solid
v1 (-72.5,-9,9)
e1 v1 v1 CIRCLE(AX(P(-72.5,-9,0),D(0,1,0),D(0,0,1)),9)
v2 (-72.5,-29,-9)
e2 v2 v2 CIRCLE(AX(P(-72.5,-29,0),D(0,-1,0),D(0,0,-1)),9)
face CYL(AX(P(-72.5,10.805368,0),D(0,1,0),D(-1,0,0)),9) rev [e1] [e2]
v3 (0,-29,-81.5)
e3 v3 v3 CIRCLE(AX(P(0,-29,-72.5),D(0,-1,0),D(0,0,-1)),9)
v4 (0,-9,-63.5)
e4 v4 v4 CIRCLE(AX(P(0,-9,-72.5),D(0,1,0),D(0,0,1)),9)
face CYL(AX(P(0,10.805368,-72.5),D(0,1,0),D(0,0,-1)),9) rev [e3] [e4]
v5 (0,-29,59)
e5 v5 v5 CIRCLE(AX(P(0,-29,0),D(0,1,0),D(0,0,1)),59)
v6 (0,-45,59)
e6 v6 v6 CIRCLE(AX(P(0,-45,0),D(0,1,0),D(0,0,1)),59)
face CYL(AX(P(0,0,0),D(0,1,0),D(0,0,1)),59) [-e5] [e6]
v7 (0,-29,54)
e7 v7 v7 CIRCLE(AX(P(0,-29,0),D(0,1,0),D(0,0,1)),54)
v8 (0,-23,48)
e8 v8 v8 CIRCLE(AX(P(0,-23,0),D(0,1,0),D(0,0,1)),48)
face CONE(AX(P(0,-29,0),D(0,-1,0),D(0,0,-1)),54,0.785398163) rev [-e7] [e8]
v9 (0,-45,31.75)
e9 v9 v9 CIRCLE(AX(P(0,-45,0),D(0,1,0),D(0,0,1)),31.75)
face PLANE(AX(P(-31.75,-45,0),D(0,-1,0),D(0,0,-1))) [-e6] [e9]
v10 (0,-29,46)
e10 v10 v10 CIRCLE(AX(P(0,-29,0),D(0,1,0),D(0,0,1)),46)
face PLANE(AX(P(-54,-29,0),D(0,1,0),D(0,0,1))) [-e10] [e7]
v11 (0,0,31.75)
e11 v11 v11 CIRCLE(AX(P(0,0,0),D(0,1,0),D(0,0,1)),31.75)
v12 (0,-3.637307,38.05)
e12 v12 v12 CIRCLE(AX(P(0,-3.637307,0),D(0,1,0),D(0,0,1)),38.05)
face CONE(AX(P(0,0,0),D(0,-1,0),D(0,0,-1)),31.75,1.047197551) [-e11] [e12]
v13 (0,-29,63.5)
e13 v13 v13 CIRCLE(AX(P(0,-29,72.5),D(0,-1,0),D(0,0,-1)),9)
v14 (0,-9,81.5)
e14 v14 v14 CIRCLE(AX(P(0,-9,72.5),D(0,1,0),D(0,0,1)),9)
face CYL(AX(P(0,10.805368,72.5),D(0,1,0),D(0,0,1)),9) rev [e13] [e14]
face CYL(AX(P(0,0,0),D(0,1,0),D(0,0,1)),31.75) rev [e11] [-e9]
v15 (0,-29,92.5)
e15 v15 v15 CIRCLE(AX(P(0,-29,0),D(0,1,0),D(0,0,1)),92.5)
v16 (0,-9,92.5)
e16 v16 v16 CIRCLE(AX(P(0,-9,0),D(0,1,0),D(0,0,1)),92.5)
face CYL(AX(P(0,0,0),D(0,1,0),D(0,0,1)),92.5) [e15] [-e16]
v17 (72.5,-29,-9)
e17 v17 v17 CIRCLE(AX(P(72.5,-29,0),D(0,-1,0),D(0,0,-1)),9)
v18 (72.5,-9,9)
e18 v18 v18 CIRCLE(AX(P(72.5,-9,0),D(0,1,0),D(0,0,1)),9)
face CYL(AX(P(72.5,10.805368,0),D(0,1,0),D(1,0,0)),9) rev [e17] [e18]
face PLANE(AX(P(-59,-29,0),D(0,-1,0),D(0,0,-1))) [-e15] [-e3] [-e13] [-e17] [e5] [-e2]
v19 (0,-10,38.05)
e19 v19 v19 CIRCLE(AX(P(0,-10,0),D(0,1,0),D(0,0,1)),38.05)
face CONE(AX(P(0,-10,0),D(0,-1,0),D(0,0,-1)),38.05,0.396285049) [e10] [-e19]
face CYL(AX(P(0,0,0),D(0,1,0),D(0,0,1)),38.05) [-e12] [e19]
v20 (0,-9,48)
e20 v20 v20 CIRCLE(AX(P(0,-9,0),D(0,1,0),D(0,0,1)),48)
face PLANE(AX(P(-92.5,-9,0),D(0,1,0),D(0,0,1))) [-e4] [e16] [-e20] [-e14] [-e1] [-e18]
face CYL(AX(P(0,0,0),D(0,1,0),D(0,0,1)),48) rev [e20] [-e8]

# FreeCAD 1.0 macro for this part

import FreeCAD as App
import Part
import Sketcher
from FreeCAD import Vector
Q = App.Units.Quantity


def add_polygon(sketch, points):
    """Adds a closed chain of lines whose ends are joined by coincident constraints."""
    first, n = sketch.GeometryCount, len(points)
    for a, b in zip(points, points[1:] + points[:1]):
        sketch.addGeometry(Part.LineSegment(App.Vector(*a, 0), App.Vector(*b, 0)), False)
    for i in range(n):
        sketch.addConstraint(Sketcher.Constraint("Coincident", first + i, 2, first + (i + 1) % n, 1))

doc = App.newDocument("Part")
params = doc.addObject("Spreadsheet::Sheet", "Params")
for row, (alias, value) in enumerate([
    ("sketch1_width", "8 mm"),
    ("sketch1_height", "45 mm"),
    ("sketch1_height2", "14 mm"),
    ("sketch1_height3", "20 mm"),
    ("sketch1_height4", "16 mm"),
    ("revolution_angle", "360 deg"),
    ("sketch2_width", "9 mm"),
    ("sketch2_height", "22 mm"),
    ("groove_angle", "360 deg"),
], start=1):
    params.set(f"A{row}", alias)
    params.set(f"B{row}", "=" + value)
    params.setAlias(f"B{row}", alias)

body = doc.addObject("PartDesign::Body", "Body")

# Sketch on XY plane
sketch1 = body.newObject("Sketcher::SketchObject", "Sketch")
sketch1.AttachmentSupport = (doc.getObject("XY_Plane"), [""])
sketch1.MapMode = "FlatFace"
add_polygon(sketch1, [(-31.75, -45), (-31.75, 0), (-38.05, -3.637307), (-38.05, -10), (-46, -29), (-54, -29), (-48, -23), (-48, -9), (-92.5, -9), (-92.5, -29), (-59, -29), (-59, -45)])  # lines 0-11
sketch1.addConstraint(Sketcher.Constraint("Vertical", 0))
sketch1.addConstraint(Sketcher.Constraint("Vertical", 2))
sketch1.addConstraint(Sketcher.Constraint("Horizontal", 4))
sketch1.addConstraint(Sketcher.Constraint("Vertical", 6))
sketch1.addConstraint(Sketcher.Constraint("Horizontal", 7))
sketch1.addConstraint(Sketcher.Constraint("Vertical", 8))
sketch1.addConstraint(Sketcher.Constraint("Horizontal", 9))
sketch1.addConstraint(Sketcher.Constraint("Vertical", 10))
sketch1.addConstraint(Sketcher.Constraint("Horizontal", 11))
sketch1.addConstraint(Sketcher.Constraint("PointOnObject", 0, 2, -1))
sketch1.addConstraint(Sketcher.Constraint("Horizontal", 4, 2, 8, 2))
sketch1.addConstraint(Sketcher.Constraint("DistanceX", 4, 2, 4, 1, Q("8 mm")))
sketch1.addConstraint(Sketcher.Constraint("DistanceY", 0, 1, 0, 2, Q("45 mm")))
sketch1.addConstraint(Sketcher.Constraint("DistanceY", 6, 1, 6, 2, Q("14 mm")))
sketch1.addConstraint(Sketcher.Constraint("DistanceY", 8, 2, 8, 1, Q("20 mm")))
sketch1.addConstraint(Sketcher.Constraint("DistanceY", 10, 2, 10, 1, Q("16 mm")))
sketch1.addConstraint(Sketcher.Constraint("Angle", 1, Q("-150 deg")))
sketch1.addConstraint(Sketcher.Constraint("Angle", 5, Q("45 deg")))
sketch1.addConstraint(Sketcher.Constraint("DistanceX", 7, 2, 7, 1, Q("44.5 mm")))
sketch1.addConstraint(Sketcher.Constraint("DistanceX", 9, 1, 9, 2, Q("33.5 mm")))
sketch1.addConstraint(Sketcher.Constraint("DistanceY", 2, 2, -1, 1, Q("10 mm")))
sketch1.addConstraint(Sketcher.Constraint("DistanceX", 3, 2, -1, 1, Q("46 mm")))
sketch1.addConstraint(Sketcher.Constraint("DistanceX", 11, 1, 11, 2, Q("27.25 mm")))
sketch1.addConstraint(Sketcher.Constraint("DistanceX", 1, 2, 0, 2, Q("6.3 mm")))
sketch1.setExpression("Constraints[23]", "Params.sketch1_width")
sketch1.setExpression("Constraints[24]", "Params.sketch1_height")
sketch1.setExpression("Constraints[25]", "Params.sketch1_height2")
sketch1.setExpression("Constraints[26]", "Params.sketch1_height3")
sketch1.setExpression("Constraints[27]", "Params.sketch1_height4")
revolution = body.newObject("PartDesign::Revolution", "Revolution")
revolution.Profile = sketch1
revolution.ReferenceAxis = (sketch1, ["V_Axis"])
revolution.setExpression("Angle", "Params.revolution_angle")

# Sketch on XY plane
sketch2 = body.newObject("Sketcher::SketchObject", "Sketch001")
sketch2.AttachmentSupport = (doc.getObject("XY_Plane"), [""])
sketch2.MapMode = "FlatFace"
add_polygon(sketch2, [(-81.5, -8), (-81.5, -30), (-72.5, -30), (-72.5, -8)])  # lines 0-3
sketch2.addGeometry(Part.LineSegment(Vector(-72.5, -8, 0), Vector(-72.5, -30, 0)), True)  # axis
sketch2.addConstraint(Sketcher.Constraint("Vertical", 0))
sketch2.addConstraint(Sketcher.Constraint("Horizontal", 1))
sketch2.addConstraint(Sketcher.Constraint("Vertical", 2))
sketch2.addConstraint(Sketcher.Constraint("Horizontal", 3))
sketch2.addConstraint(Sketcher.Constraint("Vertical", 4))
sketch2.addConstraint(Sketcher.Constraint("Coincident", 4, 1, 2, 2))
sketch2.addConstraint(Sketcher.Constraint("Horizontal", 0, 2, 4, 2))
sketch2.addConstraint(Sketcher.Constraint("DistanceX", 1, 1, 1, 2, Q("9 mm")))
sketch2.addConstraint(Sketcher.Constraint("DistanceY", 0, 2, 0, 1, Q("22 mm")))
sketch2.addConstraint(Sketcher.Constraint("DistanceY", 0, 2, -1, 1, Q("30 mm")))
sketch2.addConstraint(Sketcher.Constraint("DistanceX", 0, 2, -1, 1, Q("81.5 mm")))
sketch2.setExpression("Constraints[11]", "Params.sketch2_width")
sketch2.setExpression("Constraints[12]", "Params.sketch2_height")
groove = body.newObject("PartDesign::Groove", "Groove")
groove.Profile = sketch2
groove.ReferenceAxis = (sketch2, ["Axis0"])
groove.setExpression("Angle", "Params.groove_angle")
doc.recompute()

polarpattern = body.newObject("PartDesign::PolarPattern", "PolarPattern")
polarpattern.Originals = [groove]
polarpattern.Axis = (doc.getObject("Y_Axis"), [""])
polarpattern.Angle = 360
polarpattern.Occurrences = 4
body.Tip = polarpattern

doc.recompute()
